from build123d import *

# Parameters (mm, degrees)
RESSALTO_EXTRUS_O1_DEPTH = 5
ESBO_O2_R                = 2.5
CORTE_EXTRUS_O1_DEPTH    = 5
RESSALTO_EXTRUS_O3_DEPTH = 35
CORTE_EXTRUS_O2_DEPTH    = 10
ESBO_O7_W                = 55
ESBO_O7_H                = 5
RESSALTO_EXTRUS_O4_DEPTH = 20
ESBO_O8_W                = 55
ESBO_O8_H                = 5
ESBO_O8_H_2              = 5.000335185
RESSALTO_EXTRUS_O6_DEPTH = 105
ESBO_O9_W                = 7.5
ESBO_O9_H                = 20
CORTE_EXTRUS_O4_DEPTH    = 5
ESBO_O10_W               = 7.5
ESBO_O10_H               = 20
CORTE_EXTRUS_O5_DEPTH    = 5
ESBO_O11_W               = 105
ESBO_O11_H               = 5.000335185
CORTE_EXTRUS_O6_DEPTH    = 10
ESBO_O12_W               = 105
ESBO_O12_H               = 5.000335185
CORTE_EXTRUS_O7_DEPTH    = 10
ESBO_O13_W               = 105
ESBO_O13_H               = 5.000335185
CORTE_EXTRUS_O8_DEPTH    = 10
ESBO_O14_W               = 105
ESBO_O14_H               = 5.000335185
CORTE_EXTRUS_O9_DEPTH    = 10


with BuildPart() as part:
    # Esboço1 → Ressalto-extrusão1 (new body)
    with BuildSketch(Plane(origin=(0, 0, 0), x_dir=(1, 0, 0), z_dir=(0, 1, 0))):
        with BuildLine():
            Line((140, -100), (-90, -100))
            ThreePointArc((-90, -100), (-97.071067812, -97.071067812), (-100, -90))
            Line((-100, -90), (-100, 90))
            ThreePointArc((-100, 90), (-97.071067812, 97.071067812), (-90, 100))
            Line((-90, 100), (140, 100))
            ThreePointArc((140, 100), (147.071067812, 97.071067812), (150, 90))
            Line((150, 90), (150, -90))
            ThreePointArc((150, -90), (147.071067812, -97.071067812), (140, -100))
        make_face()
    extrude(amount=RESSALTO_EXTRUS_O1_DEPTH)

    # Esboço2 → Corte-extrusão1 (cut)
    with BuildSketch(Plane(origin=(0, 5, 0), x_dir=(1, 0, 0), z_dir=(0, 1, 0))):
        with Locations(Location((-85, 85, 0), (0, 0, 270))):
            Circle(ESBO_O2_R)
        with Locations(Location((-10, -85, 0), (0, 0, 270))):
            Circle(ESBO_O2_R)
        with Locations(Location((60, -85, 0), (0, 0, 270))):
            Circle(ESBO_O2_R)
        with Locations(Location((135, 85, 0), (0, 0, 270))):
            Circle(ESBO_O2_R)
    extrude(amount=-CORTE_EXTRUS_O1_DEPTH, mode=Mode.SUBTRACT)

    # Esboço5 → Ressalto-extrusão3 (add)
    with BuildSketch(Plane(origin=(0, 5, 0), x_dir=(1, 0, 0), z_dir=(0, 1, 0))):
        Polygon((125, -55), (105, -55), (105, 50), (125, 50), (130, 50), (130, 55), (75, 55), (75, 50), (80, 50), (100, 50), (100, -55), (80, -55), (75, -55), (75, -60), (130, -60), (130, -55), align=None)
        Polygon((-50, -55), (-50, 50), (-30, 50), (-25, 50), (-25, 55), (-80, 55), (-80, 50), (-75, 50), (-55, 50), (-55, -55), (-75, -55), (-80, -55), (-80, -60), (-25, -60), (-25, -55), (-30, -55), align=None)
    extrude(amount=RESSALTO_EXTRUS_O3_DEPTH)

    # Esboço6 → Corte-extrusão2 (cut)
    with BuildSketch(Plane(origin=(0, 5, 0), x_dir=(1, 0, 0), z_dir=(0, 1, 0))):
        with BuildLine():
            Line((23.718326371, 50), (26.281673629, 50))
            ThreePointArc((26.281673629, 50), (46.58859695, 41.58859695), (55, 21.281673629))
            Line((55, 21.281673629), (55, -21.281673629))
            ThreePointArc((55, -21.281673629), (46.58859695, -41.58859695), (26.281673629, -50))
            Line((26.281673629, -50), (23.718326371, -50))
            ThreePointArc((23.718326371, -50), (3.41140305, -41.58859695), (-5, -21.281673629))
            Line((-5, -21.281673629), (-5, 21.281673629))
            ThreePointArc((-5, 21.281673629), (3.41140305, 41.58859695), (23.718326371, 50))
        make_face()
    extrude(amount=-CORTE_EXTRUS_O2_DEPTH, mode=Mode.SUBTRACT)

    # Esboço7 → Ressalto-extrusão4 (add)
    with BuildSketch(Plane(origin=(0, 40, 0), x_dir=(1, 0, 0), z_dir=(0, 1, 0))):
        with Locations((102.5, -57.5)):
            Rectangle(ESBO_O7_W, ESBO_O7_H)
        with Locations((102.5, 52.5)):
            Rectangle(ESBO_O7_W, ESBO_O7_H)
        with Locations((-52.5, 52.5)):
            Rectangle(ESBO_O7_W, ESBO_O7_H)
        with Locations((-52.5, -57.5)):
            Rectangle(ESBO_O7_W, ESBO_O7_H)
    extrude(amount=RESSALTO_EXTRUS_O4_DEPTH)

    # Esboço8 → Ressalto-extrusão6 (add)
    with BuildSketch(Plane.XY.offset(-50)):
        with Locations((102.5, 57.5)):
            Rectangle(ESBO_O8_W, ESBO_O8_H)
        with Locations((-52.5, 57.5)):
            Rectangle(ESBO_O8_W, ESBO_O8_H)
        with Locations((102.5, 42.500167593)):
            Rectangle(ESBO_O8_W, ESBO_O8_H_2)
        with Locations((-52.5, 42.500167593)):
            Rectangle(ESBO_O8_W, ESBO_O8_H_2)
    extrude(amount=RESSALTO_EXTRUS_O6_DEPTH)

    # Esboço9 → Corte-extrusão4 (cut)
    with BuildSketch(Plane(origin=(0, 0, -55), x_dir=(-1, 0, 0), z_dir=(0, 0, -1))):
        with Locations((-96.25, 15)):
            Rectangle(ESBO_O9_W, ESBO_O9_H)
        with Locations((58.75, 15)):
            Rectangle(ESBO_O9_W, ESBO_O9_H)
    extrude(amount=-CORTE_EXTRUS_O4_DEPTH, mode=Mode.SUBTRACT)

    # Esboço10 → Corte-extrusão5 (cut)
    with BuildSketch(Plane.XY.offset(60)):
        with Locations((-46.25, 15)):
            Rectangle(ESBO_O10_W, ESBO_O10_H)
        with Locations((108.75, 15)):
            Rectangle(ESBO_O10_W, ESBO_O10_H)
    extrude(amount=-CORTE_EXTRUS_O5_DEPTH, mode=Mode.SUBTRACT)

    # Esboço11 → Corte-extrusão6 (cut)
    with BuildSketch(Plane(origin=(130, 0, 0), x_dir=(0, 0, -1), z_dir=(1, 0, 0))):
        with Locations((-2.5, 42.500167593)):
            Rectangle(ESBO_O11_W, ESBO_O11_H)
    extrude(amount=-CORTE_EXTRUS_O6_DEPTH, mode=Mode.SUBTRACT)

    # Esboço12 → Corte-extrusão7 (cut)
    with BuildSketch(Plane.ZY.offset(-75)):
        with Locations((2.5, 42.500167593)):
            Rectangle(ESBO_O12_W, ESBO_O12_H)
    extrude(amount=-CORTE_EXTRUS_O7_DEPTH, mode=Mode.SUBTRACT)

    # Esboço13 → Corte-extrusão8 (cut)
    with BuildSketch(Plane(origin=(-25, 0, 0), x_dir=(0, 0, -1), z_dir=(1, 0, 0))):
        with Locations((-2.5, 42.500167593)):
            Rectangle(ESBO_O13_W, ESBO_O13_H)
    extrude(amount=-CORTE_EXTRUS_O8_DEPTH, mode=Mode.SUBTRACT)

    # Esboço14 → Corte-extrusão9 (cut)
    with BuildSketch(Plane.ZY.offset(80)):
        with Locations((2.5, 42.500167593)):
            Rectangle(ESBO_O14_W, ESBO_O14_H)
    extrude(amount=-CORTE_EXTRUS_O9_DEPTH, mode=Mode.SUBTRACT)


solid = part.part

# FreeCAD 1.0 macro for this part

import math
import FreeCAD as App
import Part
import Sketcher
from FreeCAD import Vector


def add_polygon(sketch, points):
    """Adds a closed chain of lines whose ends are joined by coincident constraints."""
    first, n = sketch.GeometryCount, len(points)
    for a, b in zip(points, points[1:] + points[:1]):
        sketch.addGeometry(Part.LineSegment(App.Vector(*a, 0), App.Vector(*b, 0)), False)
    for i in range(n):
        sketch.addConstraint(Sketcher.Constraint("Coincident", first + i, 2, first + (i + 1) % n, 1))

doc = App.newDocument("Part")
body = doc.addObject("PartDesign::Body", "Body")

sketch1 = doc.addObject("Sketcher::SketchObject", "Sketch")
body.addObject(sketch1)
sketch1.AttachmentSupport = (doc.XZ_Plane, [""])
sketch1.MapMode = "FlatFace"
sketch1.addGeometry(Part.LineSegment(Vector(-90, 100, 0), Vector(140, 100, 0)), False)
sketch1.addGeometry(Part.ArcOfCircle(Part.Circle(Vector(140, 90, 0), Vector(0, 0, 1), 10), math.radians(0), math.radians(90)), False)
sketch1.addGeometry(Part.LineSegment(Vector(150, 90, 0), Vector(150, -90, 0)), False)
sketch1.addGeometry(Part.ArcOfCircle(Part.Circle(Vector(140, -90, 0), Vector(0, 0, 1), 10), math.radians(-90), math.radians(0)), False)
sketch1.addGeometry(Part.LineSegment(Vector(140, -100, 0), Vector(-90, -100, 0)), False)
sketch1.addGeometry(Part.ArcOfCircle(Part.Circle(Vector(-90, -90, 0), Vector(0, 0, 1), 10), math.radians(180), math.radians(270)), False)
sketch1.addGeometry(Part.LineSegment(Vector(-100, -90, 0), Vector(-100, 90, 0)), False)
sketch1.addGeometry(Part.ArcOfCircle(Part.Circle(Vector(-90, 90, 0), Vector(0, 0, 1), 10), math.radians(90), math.radians(180)), False)
sketch1.addConstraint(Sketcher.Constraint("Tangent", 0, 2, 1, 2))
sketch1.addConstraint(Sketcher.Constraint("Tangent", 1, 1, 2, 1))
sketch1.addConstraint(Sketcher.Constraint("Tangent", 2, 2, 3, 2))
sketch1.addConstraint(Sketcher.Constraint("Tangent", 3, 1, 4, 1))
sketch1.addConstraint(Sketcher.Constraint("Tangent", 4, 2, 5, 2))
sketch1.addConstraint(Sketcher.Constraint("Tangent", 5, 1, 6, 1))
sketch1.addConstraint(Sketcher.Constraint("Tangent", 6, 2, 7, 2))
sketch1.addConstraint(Sketcher.Constraint("Tangent", 7, 1, 0, 1))
sketch1.addConstraint(Sketcher.Constraint("Horizontal", 0))
sketch1.addConstraint(Sketcher.Constraint("Vertical", 2))
sketch1.addConstraint(Sketcher.Constraint("Horizontal", 4))
sketch1.addConstraint(Sketcher.Constraint("Vertical", 6))
sketch1.addConstraint(Sketcher.Constraint("Equal", 1, 3))
sketch1.addConstraint(Sketcher.Constraint("Equal", 3, 5))
sketch1.addConstraint(Sketcher.Constraint("Equal", 5, 7))
sketch1.addConstraint(Sketcher.Constraint("Radius", 1, 10.0))
sketch1.addConstraint(Sketcher.Constraint("DistanceX", 0, 1, 0, 2, 230.0))
sketch1.addConstraint(Sketcher.Constraint("DistanceY", 2, 2, 2, 1, 180.0))
sketch1.addConstraint(Sketcher.Constraint("DistanceX", -1, 1, 1, 3, 140.0))
sketch1.addConstraint(Sketcher.Constraint("DistanceY", -1, 1, 1, 3, 90.0))
pad1 = doc.addObject("PartDesign::Pad", "Pad")
body.addObject(pad1)
pad1.Profile = sketch1
pad1.Length = 5
pad1.Reversed = True

sketch2 = doc.addObject("Sketcher::SketchObject", "Sketch001")
body.addObject(sketch2)
sketch2.AttachmentSupport = (doc.XZ_Plane, [""])
sketch2.MapMode = "FlatFace"
sketch2.AttachmentOffset = App.Placement(Vector(0, 0, -5), App.Rotation())
sketch2.addGeometry(Part.Circle(Vector(-85, -85, 0), Vector(0, 0, 1), 2.5), False)
sketch2.addGeometry(Part.Circle(Vector(-10, 85, 0), Vector(0, 0, 1), 2.5), False)
sketch2.addGeometry(Part.Circle(Vector(60, 85, 0), Vector(0, 0, 1), 2.5), False)
sketch2.addGeometry(Part.Circle(Vector(135, -85, 0), Vector(0, 0, 1), 2.5), False)
sketch2.addConstraint(Sketcher.Constraint("Equal", 0, 1))
sketch2.addConstraint(Sketcher.Constraint("Equal", 1, 2))
sketch2.addConstraint(Sketcher.Constraint("Equal", 2, 3))
sketch2.addConstraint(Sketcher.Constraint("Horizontal", 1, 3, 2, 3))
sketch2.addConstraint(Sketcher.Constraint("Horizontal", 0, 3, 3, 3))
sketch2.addConstraint(Sketcher.Constraint("Diameter", 0, 5.0))
sketch2.addConstraint(Sketcher.Constraint("DistanceX", 0, 3, -1, 1, 85.0))
sketch2.addConstraint(Sketcher.Constraint("DistanceY", 0, 3, -1, 1, 85.0))
sketch2.addConstraint(Sketcher.Constraint("DistanceX", 1, 3, -1, 1, 10.0))
sketch2.addConstraint(Sketcher.Constraint("DistanceY", -1, 1, 1, 3, 85.0))
sketch2.addConstraint(Sketcher.Constraint("DistanceX", -1, 1, 2, 3, 60.0))
sketch2.addConstraint(Sketcher.Constraint("DistanceX", -1, 1, 3, 3, 135.0))
pocket1 = doc.addObject("PartDesign::Pocket", "Pocket")
body.addObject(pocket1)
pocket1.Profile = sketch2
pocket1.Length = 5
pocket1.Reversed = True

sketch3 = doc.addObject("Sketcher::SketchObject", "Sketch002")
body.addObject(sketch3)
sketch3.AttachmentSupport = (doc.XZ_Plane, [""])
sketch3.MapMode = "FlatFace"
sketch3.AttachmentOffset = App.Placement(Vector(0, 0, -5), App.Rotation())
add_polygon(sketch3, [(105, 55), (105, -50), (130, -50), (130, -55), (75, -55), (75, -50), (100, -50), (100, 55), (75, 55), (75, 60), (130, 60), (130, 55)])
add_polygon(sketch3, [(-50, 55), (-50, -50), (-25, -50), (-25, -55), (-80, -55), (-80, -50), (-55, -50), (-55, 55), (-80, 55), (-80, 60), (-25, 60), (-25, 55)])
sketch3.addConstraint(Sketcher.Constraint("Vertical", 0))
sketch3.addConstraint(Sketcher.Constraint("Horizontal", 1))
sketch3.addConstraint(Sketcher.Constraint("Vertical", 2))
sketch3.addConstraint(Sketcher.Constraint("Horizontal", 3))
sketch3.addConstraint(Sketcher.Constraint("Vertical", 4))
sketch3.addConstraint(Sketcher.Constraint("Horizontal", 5))
sketch3.addConstraint(Sketcher.Constraint("Vertical", 6))
sketch3.addConstraint(Sketcher.Constraint("Horizontal", 7))
sketch3.addConstraint(Sketcher.Constraint("Vertical", 8))
sketch3.addConstraint(Sketcher.Constraint("Horizontal", 9))
sketch3.addConstraint(Sketcher.Constraint("Vertical", 10))
sketch3.addConstraint(Sketcher.Constraint("Horizontal", 11))
sketch3.addConstraint(Sketcher.Constraint("Vertical", 12))
sketch3.addConstraint(Sketcher.Constraint("Horizontal", 13))
sketch3.addConstraint(Sketcher.Constraint("Vertical", 14))
sketch3.addConstraint(Sketcher.Constraint("Horizontal", 15))
sketch3.addConstraint(Sketcher.Constraint("Vertical", 16))
sketch3.addConstraint(Sketcher.Constraint("Horizontal", 17))
sketch3.addConstraint(Sketcher.Constraint("Vertical", 18))
sketch3.addConstraint(Sketcher.Constraint("Horizontal", 19))
sketch3.addConstraint(Sketcher.Constraint("Vertical", 20))
sketch3.addConstraint(Sketcher.Constraint("Horizontal", 21))
sketch3.addConstraint(Sketcher.Constraint("Vertical", 22))
sketch3.addConstraint(Sketcher.Constraint("Horizontal", 23))
sketch3.addConstraint(Sketcher.Constraint("Symmetric", 3, 2, 7, 2, -1))
sketch3.addConstraint(Sketcher.Constraint("Symmetric", 2, 2, 10, 2, -1))
sketch3.addConstraint(Sketcher.Constraint("Symmetric", 15, 2, 19, 2, -1))
sketch3.addConstraint(Sketcher.Constraint("Symmetric", 14, 2, 22, 2, -1))
sketch3.addConstraint(Sketcher.Constraint("Horizontal", 1, 2, 4, 2))
sketch3.addConstraint(Sketcher.Constraint("Horizontal", 5, 2, 12, 2))
sketch3.addConstraint(Sketcher.Constraint("Horizontal", 3, 2, 14, 2))
sketch3.addConstraint(Sketcher.Constraint("Horizontal", 13, 2, 16, 2))
sketch3.addConstraint(Sketcher.Constraint("Horizontal", 9, 2, 20, 2))
sketch3.addConstraint(Sketcher.Constraint("Equal", 1, 5))
sketch3.addConstraint(Sketcher.Constraint("Equal", 11, 13))
sketch3.addConstraint(Sketcher.Constraint("Equal", 9, 15))
sketch3.addConstraint(Sketcher.Constraint("Equal", 13, 17))
sketch3.addConstraint(Sketcher.Constraint("Equal", 4, 8))
sketch3.addConstraint(Sketcher.Constraint("DistanceX", 1, 1, 1, 2, 25.0))
sketch3.addConstraint(Sketcher.Constraint("DistanceX", 3, 2, 3, 1, 55.0))
sketch3.addConstraint(Sketcher.Constraint("DistanceY", 0, 2, 0, 1, 105.0))
sketch3.addConstraint(Sketcher.Constraint("DistanceY", 2, 2, 2, 1, 5.0))
sketch3.addConstraint(Sketcher.Constraint("DistanceX", -1, 1, 0, 2, 105.0))
sketch3.addConstraint(Sketcher.Constraint("DistanceX", 12, 2, -1, 1, 50.0))
pad2 = doc.addObject("PartDesign::Pad", "Pad001")
body.addObject(pad2)
pad2.Profile = sketch3
pad2.Length = 35
pad2.Reversed = True

sketch4 = doc.addObject("Sketcher::SketchObject", "Sketch003")
body.addObject(sketch4)
sketch4.AttachmentSupport = (doc.XZ_Plane, [""])
sketch4.MapMode = "FlatFace"
sketch4.AttachmentOffset = App.Placement(Vector(0, 0, -5), App.Rotation())
sketch4.addGeometry(Part.LineSegment(Vector(26.3, -50, 0), Vector(23.7, -50, 0)), False)
sketch4.addGeometry(Part.ArcOfCircle(Part.Circle(Vector(23.7, -21.3, 0), Vector(0, 0, 1), 28.7), math.radians(-180), math.radians(-90)), False)
sketch4.addGeometry(Part.LineSegment(Vector(-5, -21.3, 0), Vector(-5, 21.3, 0)), False)
sketch4.addGeometry(Part.ArcOfCircle(Part.Circle(Vector(23.7, 21.3, 0), Vector(0, 0, 1), 28.7), math.radians(90), math.radians(180)), False)
sketch4.addGeometry(Part.LineSegment(Vector(23.7, 50, 0), Vector(26.3, 50, 0)), False)
sketch4.addGeometry(Part.ArcOfCircle(Part.Circle(Vector(26.3, 21.3, 0), Vector(0, 0, 1), 28.7), math.radians(0), math.radians(90)), False)
sketch4.addGeometry(Part.LineSegment(Vector(55, 21.3, 0), Vector(55, -21.3, 0)), False)
sketch4.addGeometry(Part.ArcOfCircle(Part.Circle(Vector(26.3, -21.3, 0), Vector(0, 0, 1), 28.7), math.radians(-90), math.radians(0)), False)
sketch4.addConstraint(Sketcher.Constraint("Tangent", 0, 2, 1, 2))
sketch4.addConstraint(Sketcher.Constraint("Tangent", 1, 1, 2, 1))
sketch4.addConstraint(Sketcher.Constraint("Tangent", 2, 2, 3, 2))
sketch4.addConstraint(Sketcher.Constraint("Tangent", 3, 1, 4, 1))
sketch4.addConstraint(Sketcher.Constraint("Tangent", 4, 2, 5, 2))
sketch4.addConstraint(Sketcher.Constraint("Tangent", 5, 1, 6, 1))
sketch4.addConstraint(Sketcher.Constraint("Tangent", 6, 2, 7, 2))
sketch4.addConstraint(Sketcher.Constraint("Tangent", 7, 1, 0, 1))
sketch4.addConstraint(Sketcher.Constraint("Horizontal", 0))
sketch4.addConstraint(Sketcher.Constraint("Vertical", 2))
sketch4.addConstraint(Sketcher.Constraint("Horizontal", 4))
sketch4.addConstraint(Sketcher.Constraint("Vertical", 6))
sketch4.addConstraint(Sketcher.Constraint("Equal", 1, 3))
sketch4.addConstraint(Sketcher.Constraint("Equal", 3, 5))
sketch4.addConstraint(Sketcher.Constraint("Equal", 5, 7))
sketch4.addConstraint(Sketcher.Constraint("DistanceY", 0, 2, -1, 1, 50.0))
sketch4.addConstraint(Sketcher.Constraint("DistanceX", 1, 1, -1, 1, 5.0))
sketch4.addConstraint(Sketcher.Constraint("DistanceY", -1, 1, 3, 1, 50.0))
sketch4.addConstraint(Sketcher.Constraint("DistanceX", -1, 1, 5, 1, 55.0))
sketch4.addConstraint(Sketcher.Constraint("Radius", 1, 28.718326))
pocket2 = doc.addObject("PartDesign::Pocket", "Pocket001")
body.addObject(pocket2)
pocket2.Profile = sketch4
pocket2.Length = 10
pocket2.Reversed = True

sketch5 = doc.addObject("Sketcher::SketchObject", "Sketch004")
body.addObject(sketch5)
sketch5.AttachmentSupport = (doc.XZ_Plane, [""])
sketch5.MapMode = "FlatFace"
sketch5.AttachmentOffset = App.Placement(Vector(0, 0, -40), App.Rotation())
add_polygon(sketch5, [(75, 55), (75, 60), (130, 60), (130, 55)])
add_polygon(sketch5, [(75, -55), (75, -50), (130, -50), (130, -55)])
add_polygon(sketch5, [(-80, -55), (-80, -50), (-25, -50), (-25, -55)])
add_polygon(sketch5, [(-80, 55), (-80, 60), (-25, 60), (-25, 55)])
sketch5.addConstraint(Sketcher.Constraint("Vertical", 0))
sketch5.addConstraint(Sketcher.Constraint("Horizontal", 1))
sketch5.addConstraint(Sketcher.Constraint("Vertical", 2))
sketch5.addConstraint(Sketcher.Constraint("Horizontal", 3))
sketch5.addConstraint(Sketcher.Constraint("Vertical", 4))
sketch5.addConstraint(Sketcher.Constraint("Horizontal", 5))
sketch5.addConstraint(Sketcher.Constraint("Vertical", 6))
sketch5.addConstraint(Sketcher.Constraint("Horizontal", 7))
sketch5.addConstraint(Sketcher.Constraint("Vertical", 8))
sketch5.addConstraint(Sketcher.Constraint("Horizontal", 9))
sketch5.addConstraint(Sketcher.Constraint("Vertical", 10))
sketch5.addConstraint(Sketcher.Constraint("Horizontal", 11))
sketch5.addConstraint(Sketcher.Constraint("Vertical", 12))
sketch5.addConstraint(Sketcher.Constraint("Horizontal", 13))
sketch5.addConstraint(Sketcher.Constraint("Vertical", 14))
sketch5.addConstraint(Sketcher.Constraint("Horizontal", 15))
sketch5.addConstraint(Sketcher.Constraint("Symmetric", 2, 2, 6, 2, -1))
sketch5.addConstraint(Sketcher.Constraint("Symmetric", 10, 2, 14, 2, -1))
sketch5.addConstraint(Sketcher.Constraint("Horizontal", 5, 2, 8, 2))
sketch5.addConstraint(Sketcher.Constraint("Horizontal", 7, 2, 10, 2))
sketch5.addConstraint(Sketcher.Constraint("Horizontal", 1, 2, 12, 2))
sketch5.addConstraint(Sketcher.Constraint("Vertical", 3, 2, 4, 2))
sketch5.addConstraint(Sketcher.Constraint("Vertical", 11, 2, 12, 2))
sketch5.addConstraint(Sketcher.Constraint("Equal", 7, 9))
sketch5.addConstraint(Sketcher.Constraint("Equal", 2, 4))
sketch5.addConstraint(Sketcher.Constraint("DistanceX", 1, 1, 1, 2, 55.0))
sketch5.addConstraint(Sketcher.Constraint("DistanceY", 0, 1, 0, 2, 5.0))
sketch5.addConstraint(Sketcher.Constraint("DistanceX", -1, 1, 0, 2, 75.0))
sketch5.addConstraint(Sketcher.Constraint("DistanceY", -1, 1, 0, 2, 60.0))
sketch5.addConstraint(Sketcher.Constraint("DistanceX", 8, 2, -1, 1, 80.0))
pad3 = doc.addObject("PartDesign::Pad", "Pad002")
body.addObject(pad3)
pad3.Profile = sketch5
pad3.Length = 20
pad3.Reversed = True

sketch6 = doc.addObject("Sketcher::SketchObject", "Sketch005")
body.addObject(sketch6)
sketch6.AttachmentSupport = (doc.XY_Plane, [""])
sketch6.MapMode = "FlatFace"
sketch6.AttachmentOffset = App.Placement(Vector(0, 0, -50), App.Rotation())
add_polygon(sketch6, [(75, 60), (75, 55), (130, 55), (130, 60)])
add_polygon(sketch6, [(-80, 60), (-80, 55), (-25, 55), (-25, 60)])
add_polygon(sketch6, [(75, 45), (75, 40), (130, 40), (130, 45)])
add_polygon(sketch6, [(-80, 45), (-80, 40), (-25, 40), (-25, 45)])
sketch6.addConstraint(Sketcher.Constraint("Vertical", 0))
sketch6.addConstraint(Sketcher.Constraint("Horizontal", 1))
sketch6.addConstraint(Sketcher.Constraint("Vertical", 2))
sketch6.addConstraint(Sketcher.Constraint("Horizontal", 3))
sketch6.addConstraint(Sketcher.Constraint("Vertical", 4))
sketch6.addConstraint(Sketcher.Constraint("Horizontal", 5))
sketch6.addConstraint(Sketcher.Constraint("Vertical", 6))
sketch6.addConstraint(Sketcher.Constraint("Horizontal", 7))
sketch6.addConstraint(Sketcher.Constraint("Vertical", 8))
sketch6.addConstraint(Sketcher.Constraint("Horizontal", 9))
sketch6.addConstraint(Sketcher.Constraint("Vertical", 10))
sketch6.addConstraint(Sketcher.Constraint("Horizontal", 11))
sketch6.addConstraint(Sketcher.Constraint("Vertical", 12))
sketch6.addConstraint(Sketcher.Constraint("Horizontal", 13))
sketch6.addConstraint(Sketcher.Constraint("Vertical", 14))
sketch6.addConstraint(Sketcher.Constraint("Horizontal", 15))
sketch6.addConstraint(Sketcher.Constraint("Horizontal", 1, 2, 4, 2))
sketch6.addConstraint(Sketcher.Constraint("Horizontal", 3, 2, 6, 2))
sketch6.addConstraint(Sketcher.Constraint("Horizontal", 9, 2, 12, 2))
sketch6.addConstraint(Sketcher.Constraint("Horizontal", 11, 2, 14, 2))
sketch6.addConstraint(Sketcher.Constraint("Vertical", 3, 2, 8, 2))
sketch6.addConstraint(Sketcher.Constraint("Vertical", 2, 2, 9, 2))
sketch6.addConstraint(Sketcher.Constraint("Vertical", 7, 2, 12, 2))
sketch6.addConstraint(Sketcher.Constraint("Vertical", 6, 2, 13, 2))
sketch6.addConstraint(Sketcher.Constraint("Equal", 3, 5))
sketch6.addConstraint(Sketcher.Constraint("DistanceX", 1, 1, 1, 2, 55.0))
sketch6.addConstraint(Sketcher.Constraint("DistanceY", 0, 2, 0, 1, 5.0))
sketch6.addConstraint(Sketcher.Constraint("DistanceX", -1, 1, 0, 2, 75.0))
sketch6.addConstraint(Sketcher.Constraint("DistanceY", -1, 1, 0, 2, 55.0))
sketch6.addConstraint(Sketcher.Constraint("DistanceX", 4, 2, -1, 1, 80.0))
sketch6.addConstraint(Sketcher.Constraint("DistanceY", -1, 1, 8, 2, 40.0))
sketch6.addConstraint(Sketcher.Constraint("DistanceY", 8, 2, 8, 1, 5.000335))
pad4 = doc.addObject("PartDesign::Pad", "Pad003")
body.addObject(pad4)
pad4.Profile = sketch6
pad4.Length = 105

sketch7 = doc.addObject("Sketcher::SketchObject", "Sketch006")
body.addObject(sketch7)
sketch7.AttachmentSupport = (doc.XY_Plane, [""])
sketch7.MapMode = "FlatFace"
sketch7.AttachmentOffset = App.Placement(Vector(0, 0, -55), App.Rotation())
add_polygon(sketch7, [(100, 25), (100, 5), (92, 5), (92, 25)])
add_polygon(sketch7, [(-55, 25), (-55, 5), (-62, 5), (-62, 25)])
sketch7.addConstraint(Sketcher.Constraint("Vertical", 0))
sketch7.addConstraint(Sketcher.Constraint("Horizontal", 1))
sketch7.addConstraint(Sketcher.Constraint("Vertical", 2))
sketch7.addConstraint(Sketcher.Constraint("Horizontal", 3))
sketch7.addConstraint(Sketcher.Constraint("Vertical", 4))
sketch7.addConstraint(Sketcher.Constraint("Horizontal", 5))
sketch7.addConstraint(Sketcher.Constraint("Vertical", 6))
sketch7.addConstraint(Sketcher.Constraint("Horizontal", 7))
sketch7.addConstraint(Sketcher.Constraint("Horizontal", 1, 2, 4, 2))
sketch7.addConstraint(Sketcher.Constraint("Horizontal", 3, 2, 6, 2))
sketch7.addConstraint(Sketcher.Constraint("Equal", 3, 5))
sketch7.addConstraint(Sketcher.Constraint("DistanceY", 0, 2, 0, 1, 20.0))
sketch7.addConstraint(Sketcher.Constraint("DistanceX", 1, 2, 1, 1, 7.5))
sketch7.addConstraint(Sketcher.Constraint("DistanceX", -1, 1, 0, 2, 100.0))
sketch7.addConstraint(Sketcher.Constraint("DistanceY", -1, 1, 0, 2, 5.0))
sketch7.addConstraint(Sketcher.Constraint("DistanceX", 4, 2, -1, 1, 55.0))
pocket3 = doc.addObject("PartDesign::Pocket", "Pocket002")
body.addObject(pocket3)
pocket3.Profile = sketch7
pocket3.Length = 5
pocket3.Reversed = True

sketch8 = doc.addObject("Sketcher::SketchObject", "Sketch007")
body.addObject(sketch8)
sketch8.AttachmentSupport = (doc.XY_Plane, [""])
sketch8.MapMode = "FlatFace"
sketch8.AttachmentOffset = App.Placement(Vector(0, 0, 60), App.Rotation())
add_polygon(sketch8, [(-50, 25), (-50, 5), (-42, 5), (-42, 25)])
add_polygon(sketch8, [(105, 25), (105, 5), (112, 5), (112, 25)])
sketch8.addConstraint(Sketcher.Constraint("Vertical", 0))
sketch8.addConstraint(Sketcher.Constraint("Horizontal", 1))
sketch8.addConstraint(Sketcher.Constraint("Vertical", 2))
sketch8.addConstraint(Sketcher.Constraint("Horizontal", 3))
sketch8.addConstraint(Sketcher.Constraint("Vertical", 4))
sketch8.addConstraint(Sketcher.Constraint("Horizontal", 5))
sketch8.addConstraint(Sketcher.Constraint("Vertical", 6))
sketch8.addConstraint(Sketcher.Constraint("Horizontal", 7))
sketch8.addConstraint(Sketcher.Constraint("Horizontal", 1, 2, 4, 2))
sketch8.addConstraint(Sketcher.Constraint("Horizontal", 3, 2, 6, 2))
sketch8.addConstraint(Sketcher.Constraint("Equal", 3, 5))
sketch8.addConstraint(Sketcher.Constraint("DistanceY", 0, 2, 0, 1, 20.0))
sketch8.addConstraint(Sketcher.Constraint("DistanceX", 1, 1, 1, 2, 7.5))
sketch8.addConstraint(Sketcher.Constraint("DistanceX", 0, 2, -1, 1, 50.0))
sketch8.addConstraint(Sketcher.Constraint("DistanceY", -1, 1, 0, 2, 5.0))
sketch8.addConstraint(Sketcher.Constraint("DistanceX", -1, 1, 4, 2, 105.0))
pocket4 = doc.addObject("PartDesign::Pocket", "Pocket003")
body.addObject(pocket4)
pocket4.Profile = sketch8
pocket4.Length = 5

sketch9 = doc.addObject("Sketcher::SketchObject", "Sketch008")
body.addObject(sketch9)
sketch9.AttachmentSupport = (doc.YZ_Plane, [""])
sketch9.MapMode = "FlatFace"
sketch9.AttachmentOffset = App.Placement(Vector(0, 0, 130), App.Rotation())
add_polygon(sketch9, [(45, 55), (40, 55), (40, -50), (45, -50)])
sketch9.addConstraint(Sketcher.Constraint("Horizontal", 0))
sketch9.addConstraint(Sketcher.Constraint("Vertical", 1))
sketch9.addConstraint(Sketcher.Constraint("Horizontal", 2))
sketch9.addConstraint(Sketcher.Constraint("Vertical", 3))
sketch9.addConstraint(Sketcher.Constraint("DistanceY", 1, 2, 1, 1, 105.0))
sketch9.addConstraint(Sketcher.Constraint("DistanceX", -1, 1, 0, 2, 40.0))
sketch9.addConstraint(Sketcher.Constraint("DistanceY", -1, 1, 0, 2, 55.0))
sketch9.addConstraint(Sketcher.Constraint("DistanceX", 0, 2, 0, 1, 5.000335))
pocket5 = doc.addObject("PartDesign::Pocket", "Pocket004")
body.addObject(pocket5)
pocket5.Profile = sketch9
pocket5.Length = 10

sketch10 = doc.addObject("Sketcher::SketchObject", "Sketch009")
body.addObject(sketch10)
sketch10.AttachmentSupport = (doc.YZ_Plane, [""])
sketch10.MapMode = "FlatFace"
sketch10.AttachmentOffset = App.Placement(Vector(0, 0, 75), App.Rotation())
add_polygon(sketch10, [(45, -50), (40, -50), (40, 55), (45, 55)])
sketch10.addConstraint(Sketcher.Constraint("Horizontal", 0))
sketch10.addConstraint(Sketcher.Constraint("Vertical", 1))
sketch10.addConstraint(Sketcher.Constraint("Horizontal", 2))
sketch10.addConstraint(Sketcher.Constraint("Vertical", 3))
sketch10.addConstraint(Sketcher.Constraint("DistanceY", 1, 1, 1, 2, 105.0))
sketch10.addConstraint(Sketcher.Constraint("DistanceX", -1, 1, 0, 2, 40.0))
sketch10.addConstraint(Sketcher.Constraint("DistanceY", 0, 2, -1, 1, 50.0))
sketch10.addConstraint(Sketcher.Constraint("DistanceX", 0, 2, 0, 1, 5.000335))
pocket6 = doc.addObject("PartDesign::Pocket", "Pocket005")
body.addObject(pocket6)
pocket6.Profile = sketch10
pocket6.Length = 10
pocket6.Reversed = True

sketch11 = doc.addObject("Sketcher::SketchObject", "Sketch010")
body.addObject(sketch11)
sketch11.AttachmentSupport = (doc.YZ_Plane, [""])
sketch11.MapMode = "FlatFace"
sketch11.AttachmentOffset = App.Placement(Vector(0, 0, -25), App.Rotation())
add_polygon(sketch11, [(45, 55), (40, 55), (40, -50), (45, -50)])
sketch11.addConstraint(Sketcher.Constraint("Horizontal", 0))
sketch11.addConstraint(Sketcher.Constraint("Vertical", 1))
sketch11.addConstraint(Sketcher.Constraint("Horizontal", 2))
sketch11.addConstraint(Sketcher.Constraint("Vertical", 3))
sketch11.addConstraint(Sketcher.Constraint("DistanceY", 1, 2, 1, 1, 105.0))
sketch11.addConstraint(Sketcher.Constraint("DistanceX", -1, 1, 0, 2, 40.0))
sketch11.addConstraint(Sketcher.Constraint("DistanceY", -1, 1, 0, 2, 55.0))
sketch11.addConstraint(Sketcher.Constraint("DistanceX", 0, 2, 0, 1, 5.000335))
pocket7 = doc.addObject("PartDesign::Pocket", "Pocket006")
body.addObject(pocket7)
pocket7.Profile = sketch11
pocket7.Length = 10

sketch12 = doc.addObject("Sketcher::SketchObject", "Sketch011")
body.addObject(sketch12)
sketch12.AttachmentSupport = (doc.YZ_Plane, [""])
sketch12.MapMode = "FlatFace"
sketch12.AttachmentOffset = App.Placement(Vector(0, 0, -80), App.Rotation())
add_polygon(sketch12, [(45, -50), (40, -50), (40, 55), (45, 55)])
sketch12.addConstraint(Sketcher.Constraint("Horizontal", 0))
sketch12.addConstraint(Sketcher.Constraint("Vertical", 1))
sketch12.addConstraint(Sketcher.Constraint("Horizontal", 2))
sketch12.addConstraint(Sketcher.Constraint("Vertical", 3))
sketch12.addConstraint(Sketcher.Constraint("DistanceY", 1, 1, 1, 2, 105.0))
sketch12.addConstraint(Sketcher.Constraint("DistanceX", -1, 1, 0, 2, 40.0))
sketch12.addConstraint(Sketcher.Constraint("DistanceY", 0, 2, -1, 1, 50.0))
sketch12.addConstraint(Sketcher.Constraint("DistanceX", 0, 2, 0, 1, 5.000335))
pocket8 = doc.addObject("PartDesign::Pocket", "Pocket007")
body.addObject(pocket8)
pocket8.Profile = sketch12
pocket8.Length = 10
pocket8.Reversed = True

doc.recompute()
